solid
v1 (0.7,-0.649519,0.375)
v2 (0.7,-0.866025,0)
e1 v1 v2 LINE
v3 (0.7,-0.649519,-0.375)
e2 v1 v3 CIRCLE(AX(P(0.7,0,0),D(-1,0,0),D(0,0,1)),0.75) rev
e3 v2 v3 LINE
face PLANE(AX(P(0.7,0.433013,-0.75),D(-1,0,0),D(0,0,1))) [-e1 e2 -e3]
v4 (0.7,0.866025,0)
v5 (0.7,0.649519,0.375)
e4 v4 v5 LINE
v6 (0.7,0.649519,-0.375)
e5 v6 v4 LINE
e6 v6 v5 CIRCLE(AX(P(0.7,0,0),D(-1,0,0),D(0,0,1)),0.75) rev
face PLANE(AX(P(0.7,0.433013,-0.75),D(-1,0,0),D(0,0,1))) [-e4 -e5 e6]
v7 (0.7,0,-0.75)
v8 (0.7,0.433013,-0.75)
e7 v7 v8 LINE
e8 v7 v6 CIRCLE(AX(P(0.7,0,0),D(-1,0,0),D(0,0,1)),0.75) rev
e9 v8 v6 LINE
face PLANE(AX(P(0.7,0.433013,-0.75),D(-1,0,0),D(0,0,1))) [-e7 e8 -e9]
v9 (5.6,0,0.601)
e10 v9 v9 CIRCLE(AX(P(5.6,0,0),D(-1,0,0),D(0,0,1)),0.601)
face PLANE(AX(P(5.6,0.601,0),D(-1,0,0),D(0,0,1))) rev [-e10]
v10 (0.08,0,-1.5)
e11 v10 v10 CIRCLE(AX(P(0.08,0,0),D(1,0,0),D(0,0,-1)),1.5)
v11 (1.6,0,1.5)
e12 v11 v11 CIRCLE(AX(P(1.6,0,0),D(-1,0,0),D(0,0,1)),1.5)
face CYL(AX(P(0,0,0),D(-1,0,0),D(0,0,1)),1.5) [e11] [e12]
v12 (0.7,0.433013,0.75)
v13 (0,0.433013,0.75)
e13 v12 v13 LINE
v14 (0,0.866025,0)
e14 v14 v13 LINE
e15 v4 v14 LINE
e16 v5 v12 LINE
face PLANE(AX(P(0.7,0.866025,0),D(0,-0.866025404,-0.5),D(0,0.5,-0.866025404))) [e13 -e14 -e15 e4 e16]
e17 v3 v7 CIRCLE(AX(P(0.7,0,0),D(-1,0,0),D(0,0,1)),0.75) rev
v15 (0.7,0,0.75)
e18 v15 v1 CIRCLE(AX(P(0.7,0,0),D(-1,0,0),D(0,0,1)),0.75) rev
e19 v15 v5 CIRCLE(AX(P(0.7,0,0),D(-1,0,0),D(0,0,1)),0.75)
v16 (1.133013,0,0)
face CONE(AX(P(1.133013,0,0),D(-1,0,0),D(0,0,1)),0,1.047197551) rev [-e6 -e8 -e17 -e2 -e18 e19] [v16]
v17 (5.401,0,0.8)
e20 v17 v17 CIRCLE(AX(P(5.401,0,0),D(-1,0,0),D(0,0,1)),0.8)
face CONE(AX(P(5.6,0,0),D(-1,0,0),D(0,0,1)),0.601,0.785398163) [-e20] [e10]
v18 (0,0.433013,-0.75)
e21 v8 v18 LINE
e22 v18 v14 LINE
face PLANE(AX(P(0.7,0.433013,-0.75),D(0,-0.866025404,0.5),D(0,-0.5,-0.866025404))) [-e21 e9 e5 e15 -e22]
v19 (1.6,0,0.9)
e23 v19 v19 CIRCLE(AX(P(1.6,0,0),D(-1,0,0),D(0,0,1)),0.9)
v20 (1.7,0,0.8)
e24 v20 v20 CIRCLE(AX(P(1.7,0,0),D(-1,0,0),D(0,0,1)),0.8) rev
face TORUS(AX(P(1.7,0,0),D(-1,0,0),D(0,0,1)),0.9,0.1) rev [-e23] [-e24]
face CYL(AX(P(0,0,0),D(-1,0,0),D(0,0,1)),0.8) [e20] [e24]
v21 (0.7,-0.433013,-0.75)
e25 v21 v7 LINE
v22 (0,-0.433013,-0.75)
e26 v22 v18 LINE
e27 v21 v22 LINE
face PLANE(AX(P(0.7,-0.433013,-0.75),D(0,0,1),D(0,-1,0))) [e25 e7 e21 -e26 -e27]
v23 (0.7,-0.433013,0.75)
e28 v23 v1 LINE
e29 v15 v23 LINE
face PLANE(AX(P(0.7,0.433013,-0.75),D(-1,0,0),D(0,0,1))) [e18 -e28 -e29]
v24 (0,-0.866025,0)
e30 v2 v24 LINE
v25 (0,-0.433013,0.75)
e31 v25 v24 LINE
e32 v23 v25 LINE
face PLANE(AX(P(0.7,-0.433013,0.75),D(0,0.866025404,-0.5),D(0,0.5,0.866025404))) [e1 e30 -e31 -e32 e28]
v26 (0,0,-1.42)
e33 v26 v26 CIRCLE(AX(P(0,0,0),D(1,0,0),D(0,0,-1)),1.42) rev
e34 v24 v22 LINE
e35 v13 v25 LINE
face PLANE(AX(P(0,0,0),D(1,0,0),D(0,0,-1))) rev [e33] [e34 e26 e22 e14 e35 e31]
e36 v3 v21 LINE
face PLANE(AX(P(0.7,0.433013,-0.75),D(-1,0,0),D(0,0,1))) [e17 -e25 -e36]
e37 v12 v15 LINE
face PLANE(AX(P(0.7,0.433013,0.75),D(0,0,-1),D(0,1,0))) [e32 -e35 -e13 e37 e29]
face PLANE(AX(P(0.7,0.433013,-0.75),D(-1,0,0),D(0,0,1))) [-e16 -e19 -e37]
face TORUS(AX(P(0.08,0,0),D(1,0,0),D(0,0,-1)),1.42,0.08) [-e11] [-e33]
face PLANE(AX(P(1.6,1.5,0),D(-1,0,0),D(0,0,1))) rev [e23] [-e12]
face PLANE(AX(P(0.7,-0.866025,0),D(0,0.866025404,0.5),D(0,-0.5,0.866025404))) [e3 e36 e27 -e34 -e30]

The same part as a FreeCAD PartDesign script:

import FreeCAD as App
import Part
import Sketcher
Q = App.Units.Quantity


def edges_at(feature, points):
    """Names of the edges that pass closest to the given points."""
    edges = feature.Shape.Edges
    near = lambda p: min(range(len(edges)), key=lambda i: edges[i].distToShape(Part.Vertex(*p))[0])
    return sorted({f"Edge{near(p) + 1}" for p in points})

doc = App.newDocument("Part")
body = doc.addObject("PartDesign::Body", "Body")

sketch1 = body.newObject("Sketcher::SketchObject", "Sketch")
sketch1.AttachmentSupport = (doc.getObject("XY_Plane"), [""])
sketch1.MapMode = "FlatFace"
sketch1.addGeometry(Part.LineSegment(App.Vector(0, 1.5, 0), App.Vector(0, 0, 0)), False)
sketch1.addGeometry(Part.LineSegment(App.Vector(0, 0, 0), App.Vector(5.6, 0, 0)), False)
sketch1.addGeometry(Part.LineSegment(App.Vector(5.6, 0, 0), App.Vector(5.6, 0.6, 0)), False)
sketch1.addGeometry(Part.LineSegment(App.Vector(5.6, 0.6, 0), App.Vector(5.4, 0.8, 0)), False)
sketch1.addGeometry(Part.LineSegment(App.Vector(5.4, 0.8, 0), App.Vector(1.6, 0.8, 0)), False)
sketch1.addGeometry(Part.LineSegment(App.Vector(1.6, 0.8, 0), App.Vector(1.6, 1.5, 0)), False)
sketch1.addGeometry(Part.LineSegment(App.Vector(1.6, 1.5, 0), App.Vector(0, 1.5, 0)), False)
sketch1.addConstraint(Sketcher.Constraint("Coincident", 0, 2, 1, 1))
sketch1.addConstraint(Sketcher.Constraint("Coincident", 1, 2, 2, 1))
sketch1.addConstraint(Sketcher.Constraint("Coincident", 2, 2, 3, 1))
sketch1.addConstraint(Sketcher.Constraint("Coincident", 3, 2, 4, 1))
sketch1.addConstraint(Sketcher.Constraint("Coincident", 4, 2, 5, 1))
sketch1.addConstraint(Sketcher.Constraint("Coincident", 5, 2, 6, 1))
sketch1.addConstraint(Sketcher.Constraint("Coincident", 6, 2, 0, 1))
sketch1.addConstraint(Sketcher.Constraint("Vertical", 0))
sketch1.addConstraint(Sketcher.Constraint("Horizontal", 1))
sketch1.addConstraint(Sketcher.Constraint("Vertical", 2))
sketch1.addConstraint(Sketcher.Constraint("Horizontal", 4))
sketch1.addConstraint(Sketcher.Constraint("Vertical", 5))
sketch1.addConstraint(Sketcher.Constraint("Horizontal", 6))
sketch1.addConstraint(Sketcher.Constraint("Coincident", 0, 2, -1, 1))
sketch1.addConstraint(Sketcher.Constraint("Angle", 3, Q("135 deg")))
sketch1.addConstraint(Sketcher.Constraint("DistanceX", 1, 1, 1, 2, 5.6))
sketch1.addConstraint(Sketcher.Constraint("DistanceX", 6, 2, 6, 1, 1.6))
sketch1.addConstraint(Sketcher.Constraint("DistanceY", 0, 2, 0, 1, 1.5))
sketch1.addConstraint(Sketcher.Constraint("DistanceY", 5, 1, 5, 2, 0.7))
sketch1.addConstraint(Sketcher.Constraint("DistanceX", 4, 2, 4, 1, 3.801))
revolution = body.newObject("PartDesign::Revolution", "Revolution")
revolution.Profile = sketch1
revolution.ReferenceAxis = (sketch1, ["H_Axis"])
revolution.Angle = 360
doc.recompute()

fillet = body.newObject("PartDesign::Fillet", "Fillet")
fillet.Base = (revolution, edges_at(revolution, [(1.6, 0, -0.8)]))
fillet.Radius = 0.1
doc.recompute()

fillet2 = body.newObject("PartDesign::Fillet", "Fillet001")
fillet2.Base = (fillet, edges_at(fillet, [(0, 0, -1.5)]))
fillet2.Radius = 0.08

sketch2 = body.newObject("Sketcher::SketchObject", "Sketch001")
sketch2.AttachmentSupport = (doc.getObject("YZ_Plane"), [""])
sketch2.MapMode = "FlatFace"
sketch2.addGeometry(Part.LineSegment(App.Vector(0.9, 0, 0), App.Vector(0.4, 0.8, 0)), False)
sketch2.addGeometry(Part.LineSegment(App.Vector(0.4, 0.8, 0), App.Vector(-0.4, 0.8, 0)), False)
sketch2.addGeometry(Part.LineSegment(App.Vector(-0.4, 0.8, 0), App.Vector(-0.9, 0, 0)), False)
sketch2.addGeometry(Part.LineSegment(App.Vector(-0.9, 0, 0), App.Vector(-0.4, -0.8, 0)), False)
sketch2.addGeometry(Part.LineSegment(App.Vector(-0.4, -0.8, 0), App.Vector(0.4, -0.8, 0)), False)
sketch2.addGeometry(Part.LineSegment(App.Vector(0.4, -0.8, 0), App.Vector(0.9, 0, 0)), False)
sketch2.addConstraint(Sketcher.Constraint("Coincident", 0, 2, 1, 1))
sketch2.addConstraint(Sketcher.Constraint("Coincident", 1, 2, 2, 1))
sketch2.addConstraint(Sketcher.Constraint("Coincident", 2, 2, 3, 1))
sketch2.addConstraint(Sketcher.Constraint("Coincident", 3, 2, 4, 1))
sketch2.addConstraint(Sketcher.Constraint("Coincident", 4, 2, 5, 1))
sketch2.addConstraint(Sketcher.Constraint("Coincident", 5, 2, 0, 1))
sketch2.addConstraint(Sketcher.Constraint("Horizontal", 1))
sketch2.addConstraint(Sketcher.Constraint("Horizontal", 4))
sketch2.addConstraint(Sketcher.Constraint("Symmetric", 0, 2, 3, 2, -1, 1))
sketch2.addConstraint(Sketcher.Constraint("Symmetric", 2, 2, 5, 2, -1, 1))
sketch2.addConstraint(Sketcher.Constraint("PointOnObject", 2, 2, -1))
sketch2.addConstraint(Sketcher.Constraint("Parallel", 2, 5))
sketch2.addConstraint(Sketcher.Constraint("Vertical", 1, 2, 3, 2))
sketch2.addConstraint(Sketcher.Constraint("Angle", 0, Q("120 deg")))
sketch2.addConstraint(Sketcher.Constraint("DistanceY", 3, 2, 1, 2, 1.5))
sketch2.addConstraint(Sketcher.Constraint("DistanceX", 1, 2, 1, 1, 0.866025))
pocket1 = body.newObject("PartDesign::Pocket", "Pocket")
pocket1.Profile = sketch2
pocket1.Length = 0.7
pocket1.Reversed = True

sketch3 = body.newObject("Sketcher::SketchObject", "Sketch002")
sketch3.AttachmentSupport = (doc.getObject("XY_Plane"), [""])
sketch3.MapMode = "FlatFace"
sketch3.addGeometry(Part.LineSegment(App.Vector(0, 0.8, 0), App.Vector(0, 0, 0)), False)
sketch3.addGeometry(Part.LineSegment(App.Vector(0, 0, 0), App.Vector(1.1, 0, 0)), False)
sketch3.addGeometry(Part.LineSegment(App.Vector(1.1, 0, 0), App.Vector(0.7, 0.8, 0)), False)
sketch3.addGeometry(Part.LineSegment(App.Vector(0.7, 0.8, 0), App.Vector(0, 0.8, 0)), False)
sketch3.addConstraint(Sketcher.Constraint("Coincident", 0, 2, 1, 1))
sketch3.addConstraint(Sketcher.Constraint("Coincident", 1, 2, 2, 1))
sketch3.addConstraint(Sketcher.Constraint("Coincident", 2, 2, 3, 1))
sketch3.addConstraint(Sketcher.Constraint("Coincident", 3, 2, 0, 1))
sketch3.addConstraint(Sketcher.Constraint("Vertical", 0))
sketch3.addConstraint(Sketcher.Constraint("Horizontal", 1))
sketch3.addConstraint(Sketcher.Constraint("Horizontal", 3))
sketch3.addConstraint(Sketcher.Constraint("Coincident", 0, 2, -1, 1))
sketch3.addConstraint(Sketcher.Constraint("Angle", 2, Q("120 deg")))
sketch3.addConstraint(Sketcher.Constraint("DistanceX", 3, 2, 3, 1, 0.7))
sketch3.addConstraint(Sketcher.Constraint("DistanceY", 0, 2, 0, 1, 0.75))
groove = body.newObject("PartDesign::Groove", "Groove")
groove.Profile = sketch3
groove.ReferenceAxis = (sketch3, ["H_Axis"])
groove.Angle = 360

doc.recompute()
